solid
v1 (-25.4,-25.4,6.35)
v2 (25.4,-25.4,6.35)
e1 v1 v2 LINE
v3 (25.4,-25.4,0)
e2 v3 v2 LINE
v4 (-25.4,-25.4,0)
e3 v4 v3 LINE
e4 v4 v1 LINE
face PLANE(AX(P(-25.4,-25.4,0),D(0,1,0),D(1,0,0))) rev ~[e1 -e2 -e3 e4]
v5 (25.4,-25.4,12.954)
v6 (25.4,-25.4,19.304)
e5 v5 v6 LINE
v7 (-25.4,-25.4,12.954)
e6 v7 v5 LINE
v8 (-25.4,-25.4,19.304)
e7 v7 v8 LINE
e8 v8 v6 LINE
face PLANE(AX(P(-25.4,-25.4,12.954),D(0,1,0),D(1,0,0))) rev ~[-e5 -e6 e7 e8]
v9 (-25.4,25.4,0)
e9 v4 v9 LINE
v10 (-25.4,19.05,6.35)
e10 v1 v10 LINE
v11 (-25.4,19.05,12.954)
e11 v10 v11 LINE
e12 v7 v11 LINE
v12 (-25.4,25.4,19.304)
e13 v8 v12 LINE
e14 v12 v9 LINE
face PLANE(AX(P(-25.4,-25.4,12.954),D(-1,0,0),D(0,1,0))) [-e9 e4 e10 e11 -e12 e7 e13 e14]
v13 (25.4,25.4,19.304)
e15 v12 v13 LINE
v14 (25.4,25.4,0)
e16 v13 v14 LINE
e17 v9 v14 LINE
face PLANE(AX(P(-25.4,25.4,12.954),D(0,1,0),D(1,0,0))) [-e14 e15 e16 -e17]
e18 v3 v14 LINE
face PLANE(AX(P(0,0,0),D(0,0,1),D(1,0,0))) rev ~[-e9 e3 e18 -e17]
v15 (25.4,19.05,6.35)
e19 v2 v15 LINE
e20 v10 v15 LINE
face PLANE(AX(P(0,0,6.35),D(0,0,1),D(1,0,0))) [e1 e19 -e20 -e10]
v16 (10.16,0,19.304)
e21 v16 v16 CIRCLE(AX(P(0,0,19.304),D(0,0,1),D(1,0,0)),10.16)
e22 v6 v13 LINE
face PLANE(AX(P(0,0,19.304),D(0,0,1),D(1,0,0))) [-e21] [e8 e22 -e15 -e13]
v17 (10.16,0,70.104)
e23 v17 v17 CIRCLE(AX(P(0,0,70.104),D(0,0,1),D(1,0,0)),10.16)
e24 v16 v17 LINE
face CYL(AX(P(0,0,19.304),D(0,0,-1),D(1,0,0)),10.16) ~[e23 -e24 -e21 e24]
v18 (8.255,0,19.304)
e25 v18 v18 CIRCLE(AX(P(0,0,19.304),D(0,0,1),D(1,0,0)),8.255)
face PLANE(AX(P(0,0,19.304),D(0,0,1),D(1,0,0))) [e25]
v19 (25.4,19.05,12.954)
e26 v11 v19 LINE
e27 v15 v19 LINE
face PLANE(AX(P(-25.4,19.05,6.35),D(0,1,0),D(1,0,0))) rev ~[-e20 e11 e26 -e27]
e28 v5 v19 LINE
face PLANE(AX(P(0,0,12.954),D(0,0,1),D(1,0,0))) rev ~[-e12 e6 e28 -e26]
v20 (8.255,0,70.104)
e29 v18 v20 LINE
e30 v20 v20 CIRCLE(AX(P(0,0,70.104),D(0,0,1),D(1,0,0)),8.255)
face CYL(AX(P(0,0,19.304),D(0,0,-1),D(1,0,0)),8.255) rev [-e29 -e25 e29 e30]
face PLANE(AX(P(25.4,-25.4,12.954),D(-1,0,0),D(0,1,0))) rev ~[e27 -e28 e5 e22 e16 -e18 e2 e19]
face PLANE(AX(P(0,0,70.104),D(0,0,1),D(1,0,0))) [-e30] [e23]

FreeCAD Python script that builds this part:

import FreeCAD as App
import Part
import Sketcher
from FreeCAD import Vector
Q = App.Units.Quantity

doc = App.newDocument("Part")
params = doc.addObject("Spreadsheet::Sheet", "Params")
for row, (alias, value) in enumerate([
    ("sketch1_width", "2 in"),
    ("pad1_length", "0.25 in"),
    ("sketch2_width", "2 in"),
    ("sketch2_height", "0.25 in"),
    ("pad2_length", "0.26 in"),
    ("sketch3_width", "2 in"),
    ("pad3_length", "0.25 in"),
    ("sketch4_diameter", "0.8 in"),
    ("sketch4_diameter2", "0.65 in"),
    ("pad4_length", "2 in"),
], start=1):
    params.set(f"A{row}", alias)
    params.set(f"B{row}", "=" + value)
    params.setAlias(f"B{row}", alias)

body = doc.addObject("PartDesign::Body", "Body")

sketch1 = body.newObject("Sketcher::SketchObject", "Sketch")
sketch1.AttachmentSupport = (doc.getObject("XY_Plane"), [""])
sketch1.MapMode = "FlatFace"
sketch1.addGeometry(Part.LineSegment(Vector(-25, 25, 0), Vector(-25, -25, 0)), False)
sketch1.addGeometry(Part.LineSegment(Vector(-25, -25, 0), Vector(25, -25, 0)), False)
sketch1.addGeometry(Part.LineSegment(Vector(25, -25, 0), Vector(25, 25, 0)), False)
sketch1.addGeometry(Part.LineSegment(Vector(25, 25, 0), Vector(-25, 25, 0)), False)
sketch1.addConstraint(Sketcher.Constraint("Coincident", 0, 2, 1, 1))
sketch1.addConstraint(Sketcher.Constraint("Coincident", 1, 2, 2, 1))
sketch1.addConstraint(Sketcher.Constraint("Coincident", 2, 2, 3, 1))
sketch1.addConstraint(Sketcher.Constraint("Coincident", 3, 2, 0, 1))
sketch1.addConstraint(Sketcher.Constraint("Vertical", 0))
sketch1.addConstraint(Sketcher.Constraint("Horizontal", 1))
sketch1.addConstraint(Sketcher.Constraint("Vertical", 2))
sketch1.addConstraint(Sketcher.Constraint("Horizontal", 3))
sketch1.addConstraint(Sketcher.Constraint("Symmetric", 0, 2, 2, 2, -1, 1))
sketch1.addConstraint(Sketcher.Constraint("Equal", 3, 0))
sketch1.addConstraint(Sketcher.Constraint("DistanceX", 1, 1, 1, 2, Q("2 in")))
sketch1.setExpression("Constraints[10]", "Params.sketch1_width")
pad1 = body.newObject("PartDesign::Pad", "Pad")
pad1.Profile = sketch1
pad1.setExpression("Length", "Params.pad1_length")

sketch2 = body.newObject("Sketcher::SketchObject", "Sketch001")
sketch2.AttachmentSupport = (doc.getObject("XY_Plane"), [""])
sketch2.MapMode = "FlatFace"
sketch2.AttachmentOffset = App.Placement(Vector(0, 0, 0.25 * 25.4), App.Rotation())
sketch2.addGeometry(Part.LineSegment(Vector(-25, 25, 0), Vector(-25, 19, 0)), False)
sketch2.addGeometry(Part.LineSegment(Vector(-25, 19, 0), Vector(25, 19, 0)), False)
sketch2.addGeometry(Part.LineSegment(Vector(25, 19, 0), Vector(25, 25, 0)), False)
sketch2.addGeometry(Part.LineSegment(Vector(25, 25, 0), Vector(-25, 25, 0)), False)
sketch2.addConstraint(Sketcher.Constraint("Coincident", 0, 2, 1, 1))
sketch2.addConstraint(Sketcher.Constraint("Coincident", 1, 2, 2, 1))
sketch2.addConstraint(Sketcher.Constraint("Coincident", 2, 2, 3, 1))
sketch2.addConstraint(Sketcher.Constraint("Coincident", 3, 2, 0, 1))
sketch2.addConstraint(Sketcher.Constraint("Vertical", 0))
sketch2.addConstraint(Sketcher.Constraint("Horizontal", 1))
sketch2.addConstraint(Sketcher.Constraint("Vertical", 2))
sketch2.addConstraint(Sketcher.Constraint("Horizontal", 3))
sketch2.addConstraint(Sketcher.Constraint("DistanceX", 1, 1, 1, 2, Q("2 in")))
sketch2.addConstraint(Sketcher.Constraint("DistanceX", 0, 2, -1, 1, Q("1 in")))
sketch2.addConstraint(Sketcher.Constraint("DistanceY", -1, 1, 2, 2, Q("1 in")))
sketch2.addConstraint(Sketcher.Constraint("DistanceY", 0, 2, 0, 1, Q("0.25 in")))
sketch2.setExpression("Constraints[8]", "Params.sketch2_width")
sketch2.setExpression("Constraints[11]", "Params.sketch2_height")
pad2 = body.newObject("PartDesign::Pad", "Pad001")
pad2.Profile = sketch2
pad2.setExpression("Length", "Params.pad2_length")

sketch3 = body.newObject("Sketcher::SketchObject", "Sketch002")
sketch3.AttachmentSupport = (doc.getObject("XY_Plane"), [""])
sketch3.MapMode = "FlatFace"
sketch3.AttachmentOffset = App.Placement(Vector(0, 0, 0.51 * 25.4), App.Rotation())
sketch3.addGeometry(Part.LineSegment(Vector(-25, 25, 0), Vector(-25, -25, 0)), False)
sketch3.addGeometry(Part.LineSegment(Vector(-25, -25, 0), Vector(25, -25, 0)), False)
sketch3.addGeometry(Part.LineSegment(Vector(25, -25, 0), Vector(25, 25, 0)), False)
sketch3.addGeometry(Part.LineSegment(Vector(25, 25, 0), Vector(-25, 25, 0)), False)
sketch3.addConstraint(Sketcher.Constraint("Coincident", 0, 2, 1, 1))
sketch3.addConstraint(Sketcher.Constraint("Coincident", 1, 2, 2, 1))
sketch3.addConstraint(Sketcher.Constraint("Coincident", 2, 2, 3, 1))
sketch3.addConstraint(Sketcher.Constraint("Coincident", 3, 2, 0, 1))
sketch3.addConstraint(Sketcher.Constraint("Vertical", 0))
sketch3.addConstraint(Sketcher.Constraint("Horizontal", 1))
sketch3.addConstraint(Sketcher.Constraint("Vertical", 2))
sketch3.addConstraint(Sketcher.Constraint("Horizontal", 3))
sketch3.addConstraint(Sketcher.Constraint("Symmetric", 0, 2, 2, 2, -1, 1))
sketch3.addConstraint(Sketcher.Constraint("Equal", 3, 0))
sketch3.addConstraint(Sketcher.Constraint("DistanceX", 1, 1, 1, 2, Q("2 in")))
sketch3.setExpression("Constraints[10]", "Params.sketch3_width")
pad3 = body.newObject("PartDesign::Pad", "Pad002")
pad3.Profile = sketch3
pad3.setExpression("Length", "Params.pad3_length")

sketch4 = body.newObject("Sketcher::SketchObject", "Sketch003")
sketch4.AttachmentSupport = (doc.getObject("XY_Plane"), [""])
sketch4.MapMode = "FlatFace"
sketch4.AttachmentOffset = App.Placement(Vector(0, 0, 0.76 * 25.4), App.Rotation())
sketch4.addGeometry(Part.Circle(Vector(0, 0, 0), Vector(0, 0, 1), 10), False)
sketch4.addGeometry(Part.Circle(Vector(0, 0, 0), Vector(0, 0, 1), 8), False)
sketch4.addConstraint(Sketcher.Constraint("Coincident", 0, 3, -1, 1))
sketch4.addConstraint(Sketcher.Constraint("Coincident", 1, 3, -1, 1))
sketch4.addConstraint(Sketcher.Constraint("Diameter", 0, Q("0.8 in")))
sketch4.addConstraint(Sketcher.Constraint("Diameter", 1, Q("0.65 in")))
sketch4.setExpression("Constraints[2]", "Params.sketch4_diameter")
sketch4.setExpression("Constraints[3]", "Params.sketch4_diameter2")
pad4 = body.newObject("PartDesign::Pad", "Pad003")
pad4.Profile = sketch4
pad4.setExpression("Length", "Params.pad4_length")

doc.recompute()
